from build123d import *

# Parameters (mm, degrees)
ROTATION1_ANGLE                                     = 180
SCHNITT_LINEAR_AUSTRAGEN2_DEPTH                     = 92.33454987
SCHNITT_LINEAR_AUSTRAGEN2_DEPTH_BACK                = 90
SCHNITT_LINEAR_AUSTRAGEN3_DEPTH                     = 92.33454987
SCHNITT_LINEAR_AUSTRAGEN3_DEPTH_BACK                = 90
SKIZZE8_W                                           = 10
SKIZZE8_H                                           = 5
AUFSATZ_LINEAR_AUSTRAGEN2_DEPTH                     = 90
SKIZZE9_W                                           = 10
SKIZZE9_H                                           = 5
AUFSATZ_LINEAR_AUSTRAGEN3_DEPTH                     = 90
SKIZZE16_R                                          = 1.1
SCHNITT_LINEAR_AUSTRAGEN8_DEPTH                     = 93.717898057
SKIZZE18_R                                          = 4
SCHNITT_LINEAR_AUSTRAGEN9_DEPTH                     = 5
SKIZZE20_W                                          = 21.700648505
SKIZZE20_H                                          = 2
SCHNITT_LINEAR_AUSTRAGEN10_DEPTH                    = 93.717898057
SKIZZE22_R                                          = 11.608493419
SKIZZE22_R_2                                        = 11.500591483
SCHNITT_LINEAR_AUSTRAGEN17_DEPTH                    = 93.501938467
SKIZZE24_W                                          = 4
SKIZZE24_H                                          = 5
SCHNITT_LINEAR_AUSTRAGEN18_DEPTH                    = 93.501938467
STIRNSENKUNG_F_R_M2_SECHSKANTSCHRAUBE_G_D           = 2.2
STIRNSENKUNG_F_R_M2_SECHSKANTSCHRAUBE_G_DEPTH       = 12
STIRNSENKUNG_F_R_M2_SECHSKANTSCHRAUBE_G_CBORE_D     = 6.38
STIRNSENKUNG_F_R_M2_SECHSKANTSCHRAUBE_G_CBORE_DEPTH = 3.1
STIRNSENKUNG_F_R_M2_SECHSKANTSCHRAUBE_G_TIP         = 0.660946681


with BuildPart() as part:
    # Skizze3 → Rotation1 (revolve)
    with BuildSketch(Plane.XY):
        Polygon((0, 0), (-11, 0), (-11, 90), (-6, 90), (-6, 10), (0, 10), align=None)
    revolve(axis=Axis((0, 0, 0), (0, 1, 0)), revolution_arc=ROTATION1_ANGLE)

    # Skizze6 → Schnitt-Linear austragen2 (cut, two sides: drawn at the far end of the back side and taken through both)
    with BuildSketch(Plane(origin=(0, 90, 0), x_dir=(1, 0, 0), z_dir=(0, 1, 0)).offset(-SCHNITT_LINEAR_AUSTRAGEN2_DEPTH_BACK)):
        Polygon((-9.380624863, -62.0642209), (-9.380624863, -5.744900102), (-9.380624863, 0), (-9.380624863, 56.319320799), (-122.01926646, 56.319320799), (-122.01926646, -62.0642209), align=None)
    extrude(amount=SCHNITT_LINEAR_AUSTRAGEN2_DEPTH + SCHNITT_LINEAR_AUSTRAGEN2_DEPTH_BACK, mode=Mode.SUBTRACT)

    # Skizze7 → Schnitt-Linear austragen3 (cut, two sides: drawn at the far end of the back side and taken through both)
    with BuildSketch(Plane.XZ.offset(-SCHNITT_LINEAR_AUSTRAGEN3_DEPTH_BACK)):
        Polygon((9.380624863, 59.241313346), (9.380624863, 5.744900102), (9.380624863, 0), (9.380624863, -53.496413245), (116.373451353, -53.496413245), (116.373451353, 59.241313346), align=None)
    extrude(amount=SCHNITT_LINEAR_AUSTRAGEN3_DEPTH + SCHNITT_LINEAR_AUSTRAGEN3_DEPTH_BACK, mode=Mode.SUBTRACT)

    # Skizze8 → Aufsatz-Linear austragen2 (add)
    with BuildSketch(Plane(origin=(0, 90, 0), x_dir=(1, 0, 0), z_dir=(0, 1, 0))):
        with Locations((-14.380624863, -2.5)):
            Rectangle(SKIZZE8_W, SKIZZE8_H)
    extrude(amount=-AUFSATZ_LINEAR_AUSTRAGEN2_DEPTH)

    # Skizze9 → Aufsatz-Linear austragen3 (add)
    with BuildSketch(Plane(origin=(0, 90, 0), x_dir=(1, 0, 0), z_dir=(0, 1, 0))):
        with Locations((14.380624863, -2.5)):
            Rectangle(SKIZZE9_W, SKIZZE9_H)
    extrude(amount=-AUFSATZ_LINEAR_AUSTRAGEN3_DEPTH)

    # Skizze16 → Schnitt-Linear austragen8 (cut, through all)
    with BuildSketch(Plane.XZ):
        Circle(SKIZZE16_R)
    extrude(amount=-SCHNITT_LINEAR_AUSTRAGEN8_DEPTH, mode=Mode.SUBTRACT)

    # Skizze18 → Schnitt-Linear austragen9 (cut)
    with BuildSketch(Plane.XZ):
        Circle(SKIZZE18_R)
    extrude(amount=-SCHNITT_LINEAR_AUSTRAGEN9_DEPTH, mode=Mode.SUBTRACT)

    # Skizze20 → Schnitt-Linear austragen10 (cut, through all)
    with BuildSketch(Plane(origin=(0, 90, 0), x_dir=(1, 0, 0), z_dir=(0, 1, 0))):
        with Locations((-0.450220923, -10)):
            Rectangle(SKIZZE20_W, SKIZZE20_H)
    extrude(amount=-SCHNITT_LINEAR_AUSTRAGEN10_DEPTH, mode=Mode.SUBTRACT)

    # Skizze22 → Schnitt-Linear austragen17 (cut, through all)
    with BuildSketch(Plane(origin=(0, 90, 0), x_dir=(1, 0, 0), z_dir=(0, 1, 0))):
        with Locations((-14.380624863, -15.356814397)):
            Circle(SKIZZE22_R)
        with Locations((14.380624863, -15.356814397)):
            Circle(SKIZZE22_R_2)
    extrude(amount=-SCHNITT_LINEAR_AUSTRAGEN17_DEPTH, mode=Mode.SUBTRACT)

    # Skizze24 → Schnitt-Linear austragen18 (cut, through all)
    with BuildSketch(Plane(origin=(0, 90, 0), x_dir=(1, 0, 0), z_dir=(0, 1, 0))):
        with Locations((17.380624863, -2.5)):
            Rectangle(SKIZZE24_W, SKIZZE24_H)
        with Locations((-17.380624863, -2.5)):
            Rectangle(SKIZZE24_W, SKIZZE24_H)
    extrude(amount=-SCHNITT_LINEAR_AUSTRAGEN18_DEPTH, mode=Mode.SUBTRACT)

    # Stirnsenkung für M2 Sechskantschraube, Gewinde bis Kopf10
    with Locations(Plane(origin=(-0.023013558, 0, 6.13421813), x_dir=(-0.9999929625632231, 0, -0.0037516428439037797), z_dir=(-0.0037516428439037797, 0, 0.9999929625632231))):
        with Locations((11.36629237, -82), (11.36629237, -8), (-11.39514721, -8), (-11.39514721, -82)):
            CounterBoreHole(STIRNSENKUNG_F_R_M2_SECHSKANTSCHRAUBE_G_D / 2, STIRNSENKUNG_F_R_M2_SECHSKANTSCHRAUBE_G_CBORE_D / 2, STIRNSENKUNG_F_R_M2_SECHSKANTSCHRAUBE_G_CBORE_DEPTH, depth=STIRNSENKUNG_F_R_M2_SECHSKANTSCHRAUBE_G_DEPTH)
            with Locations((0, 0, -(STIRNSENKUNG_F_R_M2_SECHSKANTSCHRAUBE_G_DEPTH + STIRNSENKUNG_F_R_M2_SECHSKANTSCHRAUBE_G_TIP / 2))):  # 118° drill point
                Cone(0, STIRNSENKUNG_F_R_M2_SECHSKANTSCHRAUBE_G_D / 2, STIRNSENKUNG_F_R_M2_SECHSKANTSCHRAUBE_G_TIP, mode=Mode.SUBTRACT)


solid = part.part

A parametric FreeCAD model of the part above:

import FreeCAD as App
import Part
import Sketcher

doc = App.newDocument("Part")
body = doc.addObject("PartDesign::Body", "Body")

# Sketch on XY plane
sketch1 = body.newObject("Sketcher::SketchObject", "Sketch")
sketch1.AttachmentSupport = (doc.getObject("XY_Plane"), [""])
sketch1.MapMode = "FlatFace"
sketch1.addGeometry([
    Part.LineSegment(App.Vector(-11, 0, 0), App.Vector(0, 0, 0)),  # 0
    Part.LineSegment(App.Vector(0, 0, 0), App.Vector(0, 10, 0)),  # 1
    Part.LineSegment(App.Vector(0, 10, 0), App.Vector(-6, 10, 0)),  # 2
    Part.LineSegment(App.Vector(-6, 10, 0), App.Vector(-6, 90, 0)),  # 3
    Part.LineSegment(App.Vector(-6, 90, 0), App.Vector(-11, 90, 0)),  # 4
    Part.LineSegment(App.Vector(-11, 90, 0), App.Vector(-11, 0, 0)),  # 5
], False)
sketch1.addConstraint([
    Sketcher.Constraint("Coincident", 0, 2, 1, 1),
    Sketcher.Constraint("Coincident", 1, 2, 2, 1),
    Sketcher.Constraint("Coincident", 2, 2, 3, 1),
    Sketcher.Constraint("Coincident", 3, 2, 4, 1),
    Sketcher.Constraint("Coincident", 4, 2, 5, 1),
    Sketcher.Constraint("Coincident", 5, 2, 0, 1),
    Sketcher.Constraint("Horizontal", 0),
    Sketcher.Constraint("Vertical", 1),
    Sketcher.Constraint("Horizontal", 2),
    Sketcher.Constraint("Vertical", 3),
    Sketcher.Constraint("Horizontal", 4),
    Sketcher.Constraint("Vertical", 5),
    Sketcher.Constraint("Coincident", 0, 2, -1, 1),
    Sketcher.Constraint("DistanceX", 0, 1, 0, 2, 11.0),
    Sketcher.Constraint("DistanceX", 2, 2, 2, 1, 6.0),
    Sketcher.Constraint("DistanceY", 1, 1, 1, 2, 10.0),
    Sketcher.Constraint("DistanceY", 3, 1, 3, 2, 80.0),
])
revolution = body.newObject("PartDesign::Revolution", "Revolution")
revolution.Profile = sketch1
revolution.ReferenceAxis = (sketch1, ["V_Axis"])
revolution.Angle = 180

# Sketch on XZ plane
sketch2 = body.newObject("Sketcher::SketchObject", "Sketch001")
sketch2.AttachmentSupport = (doc.getObject("XZ_Plane"), [""])
sketch2.MapMode = "FlatFace"
sketch2.AttachmentOffset = App.Placement(App.Vector(0, 0, -90), App.Rotation())
sketch2.addGeometry([
    Part.LineSegment(App.Vector(-9, 62, 0), App.Vector(-9, -56, 0)),
    Part.LineSegment(App.Vector(-9, -56, 0), App.Vector(-122, -56, 0)),
    Part.LineSegment(App.Vector(-122, -56, 0), App.Vector(-122, 62, 0)),
    Part.LineSegment(App.Vector(-122, 62, 0), App.Vector(-9, 62, 0)),
], False)
sketch2.addConstraint([
    Sketcher.Constraint("Coincident", 0, 2, 1, 1),
    Sketcher.Constraint("Coincident", 1, 2, 2, 1),
    Sketcher.Constraint("Coincident", 2, 2, 3, 1),
    Sketcher.Constraint("Coincident", 3, 2, 0, 1),
    Sketcher.Constraint("Vertical", 0),
    Sketcher.Constraint("Horizontal", 1),
    Sketcher.Constraint("Vertical", 2),
    Sketcher.Constraint("Horizontal", 3),
    Sketcher.Constraint("DistanceX", 1, 2, 1, 1, 112.638642),
    Sketcher.Constraint("DistanceY", 0, 2, 0, 1, 118.383542),
    Sketcher.Constraint("DistanceY", 0, 2, -1, 1, 56.319321),
    Sketcher.Constraint("DistanceX", 0, 2, -1, 1, 9.380625),
])
pocket1 = body.newObject("PartDesign::Pocket", "Pocket")
pocket1.Profile = sketch2
pocket1.Type = "ThroughAll"
pocket1.Midplane = True

# Sketch on XZ plane
sketch3 = body.newObject("Sketcher::SketchObject", "Sketch002")
sketch3.AttachmentSupport = (doc.getObject("XZ_Plane"), [""])
sketch3.MapMode = "FlatFace"
sketch3.addGeometry([
    Part.LineSegment(App.Vector(9, 59, 0), App.Vector(9, -53, 0)),
    Part.LineSegment(App.Vector(9, -53, 0), App.Vector(116, -53, 0)),
    Part.LineSegment(App.Vector(116, -53, 0), App.Vector(116, 59, 0)),
    Part.LineSegment(App.Vector(116, 59, 0), App.Vector(9, 59, 0)),
], False)
sketch3.addConstraint([
    Sketcher.Constraint("Coincident", 0, 2, 1, 1),
    Sketcher.Constraint("Coincident", 1, 2, 2, 1),
    Sketcher.Constraint("Coincident", 2, 2, 3, 1),
    Sketcher.Constraint("Coincident", 3, 2, 0, 1),
    Sketcher.Constraint("Vertical", 0),
    Sketcher.Constraint("Horizontal", 1),
    Sketcher.Constraint("Vertical", 2),
    Sketcher.Constraint("Horizontal", 3),
    Sketcher.Constraint("DistanceX", 1, 1, 1, 2, 106.992826),
    Sketcher.Constraint("DistanceY", 0, 2, 0, 1, 112.737727),
    Sketcher.Constraint("DistanceX", -1, 1, 1, 2, 116.373451),
    Sketcher.Constraint("DistanceY", 0, 2, -1, 1, 53.496413),
])
pocket2 = body.newObject("PartDesign::Pocket", "Pocket001")
pocket2.Profile = sketch3
pocket2.Type = "ThroughAll"
pocket2.Midplane = True

# Sketch on XZ plane
sketch4 = body.newObject("Sketcher::SketchObject", "Sketch003")
sketch4.AttachmentSupport = (doc.getObject("XZ_Plane"), [""])
sketch4.MapMode = "FlatFace"
sketch4.AttachmentOffset = App.Placement(App.Vector(0, 0, -90), App.Rotation())
sketch4.addGeometry([
    Part.LineSegment(App.Vector(-19, 0, 0), App.Vector(-19, 5, 0)),
    Part.LineSegment(App.Vector(-19, 5, 0), App.Vector(-9, 5, 0)),
    Part.LineSegment(App.Vector(-9, 5, 0), App.Vector(-9, 0, 0)),
    Part.LineSegment(App.Vector(-9, 0, 0), App.Vector(-19, 0, 0)),
], False)
sketch4.addConstraint([
    Sketcher.Constraint("Coincident", 0, 2, 1, 1),
    Sketcher.Constraint("Coincident", 1, 2, 2, 1),
    Sketcher.Constraint("Coincident", 2, 2, 3, 1),
    Sketcher.Constraint("Coincident", 3, 2, 0, 1),
    Sketcher.Constraint("Vertical", 0),
    Sketcher.Constraint("Horizontal", 1),
    Sketcher.Constraint("Vertical", 2),
    Sketcher.Constraint("Horizontal", 3),
    Sketcher.Constraint("PointOnObject", 2, 2, -1),
    Sketcher.Constraint("DistanceX", 1, 1, 1, 2, 10.0),
    Sketcher.Constraint("DistanceY", 0, 1, 0, 2, 5.0),
    Sketcher.Constraint("DistanceX", 0, 2, -1, 1, 19.380625),
])
pad1 = body.newObject("PartDesign::Pad", "Pad")
pad1.Profile = sketch4
pad1.Length = 90

# Sketch on XZ plane
sketch5 = body.newObject("Sketcher::SketchObject", "Sketch004")
sketch5.AttachmentSupport = (doc.getObject("XZ_Plane"), [""])
sketch5.MapMode = "FlatFace"
sketch5.AttachmentOffset = App.Placement(App.Vector(0, 0, -90), App.Rotation())
sketch5.addGeometry([
    Part.LineSegment(App.Vector(9, 0, 0), App.Vector(9, 5, 0)),
    Part.LineSegment(App.Vector(9, 5, 0), App.Vector(19, 5, 0)),
    Part.LineSegment(App.Vector(19, 5, 0), App.Vector(19, 0, 0)),
    Part.LineSegment(App.Vector(19, 0, 0), App.Vector(9, 0, 0)),
], False)
sketch5.addConstraint([
    Sketcher.Constraint("Coincident", 0, 2, 1, 1),
    Sketcher.Constraint("Coincident", 1, 2, 2, 1),
    Sketcher.Constraint("Coincident", 2, 2, 3, 1),
    Sketcher.Constraint("Coincident", 3, 2, 0, 1),
    Sketcher.Constraint("Vertical", 0),
    Sketcher.Constraint("Horizontal", 1),
    Sketcher.Constraint("Vertical", 2),
    Sketcher.Constraint("Horizontal", 3),
    Sketcher.Constraint("PointOnObject", 2, 2, -1),
    Sketcher.Constraint("DistanceX", 1, 1, 1, 2, 10.0),
    Sketcher.Constraint("DistanceY", 0, 1, 0, 2, 5.0),
    Sketcher.Constraint("DistanceX", -1, 1, 0, 2, 9.380625),
])
pad2 = body.newObject("PartDesign::Pad", "Pad001")
pad2.Profile = sketch5
pad2.Length = 90

# Sketch on XZ plane
sketch6 = body.newObject("Sketcher::SketchObject", "Sketch005")
sketch6.AttachmentSupport = (doc.getObject("XZ_Plane"), [""])
sketch6.MapMode = "FlatFace"
sketch6.addGeometry(Part.Circle(App.Vector(0, 0, 0), App.Vector(0, 0, 1), 1.1), False)
sketch6.addConstraint([
    Sketcher.Constraint("Coincident", 0, 3, -1, 1),
    Sketcher.Constraint("Diameter", 0, 2.2),
])
pocket3 = body.newObject("PartDesign::Pocket", "Pocket002")
pocket3.Profile = sketch6
pocket3.Type = "ThroughAll"

# Sketch on XZ plane
sketch7 = body.newObject("Sketcher::SketchObject", "Sketch006")
sketch7.AttachmentSupport = (doc.getObject("XZ_Plane"), [""])
sketch7.MapMode = "FlatFace"
sketch7.addGeometry(Part.Circle(App.Vector(0, 0, 0), App.Vector(0, 0, 1), 4), False)
sketch7.addConstraint([
    Sketcher.Constraint("Coincident", 0, 3, -1, 1),
    Sketcher.Constraint("Diameter", 0, 8.0),
])
pocket4 = body.newObject("PartDesign::Pocket", "Pocket003")
pocket4.Profile = sketch7
pocket4.Length = 5

# Sketch on XZ plane
sketch8 = body.newObject("Sketcher::SketchObject", "Sketch007")
sketch8.AttachmentSupport = (doc.getObject("XZ_Plane"), [""])
sketch8.MapMode = "FlatFace"
sketch8.AttachmentOffset = App.Placement(App.Vector(0, 0, -90), App.Rotation())
sketch8.addGeometry([
    Part.LineSegment(App.Vector(-11.3, 9, 0), App.Vector(-11.3, 11, 0)),
    Part.LineSegment(App.Vector(-11.3, 11, 0), App.Vector(10.4, 11, 0)),
    Part.LineSegment(App.Vector(10.4, 11, 0), App.Vector(10.4, 9, 0)),
    Part.LineSegment(App.Vector(10.4, 9, 0), App.Vector(-11.3, 9, 0)),
], False)
sketch8.addConstraint([
    Sketcher.Constraint("Coincident", 0, 2, 1, 1),
    Sketcher.Constraint("Coincident", 1, 2, 2, 1),
    Sketcher.Constraint("Coincident", 2, 2, 3, 1),
    Sketcher.Constraint("Coincident", 3, 2, 0, 1),
    Sketcher.Constraint("Vertical", 0),
    Sketcher.Constraint("Horizontal", 1),
    Sketcher.Constraint("Vertical", 2),
    Sketcher.Constraint("Horizontal", 3),
    Sketcher.Constraint("DistanceY", 0, 1, 0, 2, 2.0),
    Sketcher.Constraint("DistanceY", -1, 1, 0, 2, 11.0),
    Sketcher.Constraint("DistanceX", 1, 1, 1, 2, 21.700649),
    Sketcher.Constraint("DistanceX", 0, 2, -1, 1, 11.300545),
])
pocket5 = body.newObject("PartDesign::Pocket", "Pocket004")
pocket5.Profile = sketch8
pocket5.Type = "ThroughAll"
pocket5.Reversed = True

# Sketch on XZ plane
sketch9 = body.newObject("Sketcher::SketchObject", "Sketch008")
sketch9.AttachmentSupport = (doc.getObject("XZ_Plane"), [""])
sketch9.MapMode = "FlatFace"
sketch9.AttachmentOffset = App.Placement(App.Vector(0, 0, -90), App.Rotation())
sketch9.addGeometry([
    Part.Circle(App.Vector(-14, 15, 0), App.Vector(0, 0, 1), 12),
    Part.Circle(App.Vector(14, 15, 0), App.Vector(0, 0, 1), 12),
], False)
sketch9.addConstraint([
    Sketcher.Constraint("Symmetric", 0, 3, 1, 3, -2),
    Sketcher.Constraint("Diameter", 0, 23.216987),
    Sketcher.Constraint("Diameter", 1, 23.001183),
    Sketcher.Constraint("DistanceX", 0, 3, 1, 3, 28.76125),
    Sketcher.Constraint("DistanceY", -1, 1, 0, 3, 15.356814),
])
pocket6 = body.newObject("PartDesign::Pocket", "Pocket005")
pocket6.Profile = sketch9
pocket6.Type = "ThroughAll"
pocket6.Reversed = True

# Sketch on XZ plane
sketch10 = body.newObject("Sketcher::SketchObject", "Sketch009")
sketch10.AttachmentSupport = (doc.getObject("XZ_Plane"), [""])
sketch10.MapMode = "FlatFace"
sketch10.AttachmentOffset = App.Placement(App.Vector(0, 0, -90), App.Rotation())
sketch10.addGeometry([
    Part.LineSegment(App.Vector(15.4, 0, 0), App.Vector(15.4, 5, 0)),  # 0
    Part.LineSegment(App.Vector(15.4, 5, 0), App.Vector(19.4, 5, 0)),  # 1
    Part.LineSegment(App.Vector(19.4, 5, 0), App.Vector(19.4, 0, 0)),  # 2
    Part.LineSegment(App.Vector(19.4, 0, 0), App.Vector(15.4, 0, 0)),  # 3
    Part.LineSegment(App.Vector(-19.4, 0, 0), App.Vector(-19.4, 5, 0)),  # 4
    Part.LineSegment(App.Vector(-19.4, 5, 0), App.Vector(-15.4, 5, 0)),  # 5
    Part.LineSegment(App.Vector(-15.4, 5, 0), App.Vector(-15.4, 0, 0)),  # 6
    Part.LineSegment(App.Vector(-15.4, 0, 0), App.Vector(-19.4, 0, 0)),  # 7
], False)
sketch10.addConstraint([
    Sketcher.Constraint("Coincident", 0, 2, 1, 1),
    Sketcher.Constraint("Coincident", 1, 2, 2, 1),
    Sketcher.Constraint("Coincident", 2, 2, 3, 1),
    Sketcher.Constraint("Coincident", 3, 2, 0, 1),
    Sketcher.Constraint("Coincident", 4, 2, 5, 1),
    Sketcher.Constraint("Coincident", 5, 2, 6, 1),
    Sketcher.Constraint("Coincident", 6, 2, 7, 1),
    Sketcher.Constraint("Coincident", 7, 2, 4, 1),
    Sketcher.Constraint("Vertical", 0),
    Sketcher.Constraint("Horizontal", 1),
    Sketcher.Constraint("Vertical", 2),
    Sketcher.Constraint("Horizontal", 3),
    Sketcher.Constraint("Vertical", 4),
    Sketcher.Constraint("Horizontal", 5),
    Sketcher.Constraint("Vertical", 6),
    Sketcher.Constraint("Horizontal", 7),
    Sketcher.Constraint("Symmetric", 3, 2, 6, 2, -1, 1),
    Sketcher.Constraint("Symmetric", 1, 2, 4, 2, -2),
    Sketcher.Constraint("PointOnObject", 2, 2, -1),
    Sketcher.Constraint("DistanceX", 1, 1, 1, 2, 4.0),
    Sketcher.Constraint("DistanceY", 0, 1, 0, 2, 5.0),
    Sketcher.Constraint("DistanceX", 4, 2, 0, 2, 34.76125),
])
pocket7 = body.newObject("PartDesign::Pocket", "Pocket006")
pocket7.Profile = sketch10
pocket7.Type = "ThroughAll"
pocket7.Reversed = True

# Sketch on an angled plane
sketch11 = body.newObject("Sketcher::SketchObject", "Sketch010")
sketch11.Placement = App.Placement(App.Vector(-0.023014, 0, 6.134218), App.Rotation(App.Vector(-0.999992963, 0, -0.003751643), App.Vector(0, -1.000000001, 0), App.Vector(-0.003751643, 0, 0.999992963), "ZXY"))
sketch11.addGeometry([
    Part.Circle(App.Vector(11.4, -82, 0), App.Vector(0, 0, 1), 1.1),
    Part.Circle(App.Vector(11.4, -8, 0), App.Vector(0, 0, 1), 1.1),
    Part.Circle(App.Vector(-11.4, -8, 0), App.Vector(0, 0, 1), 1.1),
    Part.Circle(App.Vector(-11.4, -82, 0), App.Vector(0, 0, 1), 1.1),
], False)
sketch11.addConstraint([
    Sketcher.Constraint("Equal", 0, 1),
    Sketcher.Constraint("Equal", 1, 2),
    Sketcher.Constraint("Equal", 2, 3),
    Sketcher.Constraint("Horizontal", 1, 3, 2, 3),
    Sketcher.Constraint("Horizontal", 0, 3, 3, 3),
    Sketcher.Constraint("Vertical", 0, 3, 1, 3),
    Sketcher.Constraint("Vertical", 2, 3, 3, 3),
    Sketcher.Constraint("Diameter", 0, 2.2),
    Sketcher.Constraint("DistanceY", 0, 3, -1, 1, 82.0),
    Sketcher.Constraint("DistanceY", 1, 3, -1, 1, 8.0),
    Sketcher.Constraint("DistanceX", 2, 3, 1, 3, 22.76144),
    Sketcher.Constraint("DistanceX", -1, 1, 0, 3, 11.366292),
])
doc.recompute()
hole = body.newObject("PartDesign::Hole", "Hole")
hole.Profile = sketch11
hole.ThreadType = "None"
hole.Diameter = 2.2
hole.DepthType = "Dimension"
hole.Depth = 12
hole.DrillPoint = "Angled"
hole.DrillPointAngle = 118
hole.HoleCutType = "Counterbore"
hole.HoleCutDiameter = 6.38
hole.HoleCutDepth = 3.1

doc.recompute()
